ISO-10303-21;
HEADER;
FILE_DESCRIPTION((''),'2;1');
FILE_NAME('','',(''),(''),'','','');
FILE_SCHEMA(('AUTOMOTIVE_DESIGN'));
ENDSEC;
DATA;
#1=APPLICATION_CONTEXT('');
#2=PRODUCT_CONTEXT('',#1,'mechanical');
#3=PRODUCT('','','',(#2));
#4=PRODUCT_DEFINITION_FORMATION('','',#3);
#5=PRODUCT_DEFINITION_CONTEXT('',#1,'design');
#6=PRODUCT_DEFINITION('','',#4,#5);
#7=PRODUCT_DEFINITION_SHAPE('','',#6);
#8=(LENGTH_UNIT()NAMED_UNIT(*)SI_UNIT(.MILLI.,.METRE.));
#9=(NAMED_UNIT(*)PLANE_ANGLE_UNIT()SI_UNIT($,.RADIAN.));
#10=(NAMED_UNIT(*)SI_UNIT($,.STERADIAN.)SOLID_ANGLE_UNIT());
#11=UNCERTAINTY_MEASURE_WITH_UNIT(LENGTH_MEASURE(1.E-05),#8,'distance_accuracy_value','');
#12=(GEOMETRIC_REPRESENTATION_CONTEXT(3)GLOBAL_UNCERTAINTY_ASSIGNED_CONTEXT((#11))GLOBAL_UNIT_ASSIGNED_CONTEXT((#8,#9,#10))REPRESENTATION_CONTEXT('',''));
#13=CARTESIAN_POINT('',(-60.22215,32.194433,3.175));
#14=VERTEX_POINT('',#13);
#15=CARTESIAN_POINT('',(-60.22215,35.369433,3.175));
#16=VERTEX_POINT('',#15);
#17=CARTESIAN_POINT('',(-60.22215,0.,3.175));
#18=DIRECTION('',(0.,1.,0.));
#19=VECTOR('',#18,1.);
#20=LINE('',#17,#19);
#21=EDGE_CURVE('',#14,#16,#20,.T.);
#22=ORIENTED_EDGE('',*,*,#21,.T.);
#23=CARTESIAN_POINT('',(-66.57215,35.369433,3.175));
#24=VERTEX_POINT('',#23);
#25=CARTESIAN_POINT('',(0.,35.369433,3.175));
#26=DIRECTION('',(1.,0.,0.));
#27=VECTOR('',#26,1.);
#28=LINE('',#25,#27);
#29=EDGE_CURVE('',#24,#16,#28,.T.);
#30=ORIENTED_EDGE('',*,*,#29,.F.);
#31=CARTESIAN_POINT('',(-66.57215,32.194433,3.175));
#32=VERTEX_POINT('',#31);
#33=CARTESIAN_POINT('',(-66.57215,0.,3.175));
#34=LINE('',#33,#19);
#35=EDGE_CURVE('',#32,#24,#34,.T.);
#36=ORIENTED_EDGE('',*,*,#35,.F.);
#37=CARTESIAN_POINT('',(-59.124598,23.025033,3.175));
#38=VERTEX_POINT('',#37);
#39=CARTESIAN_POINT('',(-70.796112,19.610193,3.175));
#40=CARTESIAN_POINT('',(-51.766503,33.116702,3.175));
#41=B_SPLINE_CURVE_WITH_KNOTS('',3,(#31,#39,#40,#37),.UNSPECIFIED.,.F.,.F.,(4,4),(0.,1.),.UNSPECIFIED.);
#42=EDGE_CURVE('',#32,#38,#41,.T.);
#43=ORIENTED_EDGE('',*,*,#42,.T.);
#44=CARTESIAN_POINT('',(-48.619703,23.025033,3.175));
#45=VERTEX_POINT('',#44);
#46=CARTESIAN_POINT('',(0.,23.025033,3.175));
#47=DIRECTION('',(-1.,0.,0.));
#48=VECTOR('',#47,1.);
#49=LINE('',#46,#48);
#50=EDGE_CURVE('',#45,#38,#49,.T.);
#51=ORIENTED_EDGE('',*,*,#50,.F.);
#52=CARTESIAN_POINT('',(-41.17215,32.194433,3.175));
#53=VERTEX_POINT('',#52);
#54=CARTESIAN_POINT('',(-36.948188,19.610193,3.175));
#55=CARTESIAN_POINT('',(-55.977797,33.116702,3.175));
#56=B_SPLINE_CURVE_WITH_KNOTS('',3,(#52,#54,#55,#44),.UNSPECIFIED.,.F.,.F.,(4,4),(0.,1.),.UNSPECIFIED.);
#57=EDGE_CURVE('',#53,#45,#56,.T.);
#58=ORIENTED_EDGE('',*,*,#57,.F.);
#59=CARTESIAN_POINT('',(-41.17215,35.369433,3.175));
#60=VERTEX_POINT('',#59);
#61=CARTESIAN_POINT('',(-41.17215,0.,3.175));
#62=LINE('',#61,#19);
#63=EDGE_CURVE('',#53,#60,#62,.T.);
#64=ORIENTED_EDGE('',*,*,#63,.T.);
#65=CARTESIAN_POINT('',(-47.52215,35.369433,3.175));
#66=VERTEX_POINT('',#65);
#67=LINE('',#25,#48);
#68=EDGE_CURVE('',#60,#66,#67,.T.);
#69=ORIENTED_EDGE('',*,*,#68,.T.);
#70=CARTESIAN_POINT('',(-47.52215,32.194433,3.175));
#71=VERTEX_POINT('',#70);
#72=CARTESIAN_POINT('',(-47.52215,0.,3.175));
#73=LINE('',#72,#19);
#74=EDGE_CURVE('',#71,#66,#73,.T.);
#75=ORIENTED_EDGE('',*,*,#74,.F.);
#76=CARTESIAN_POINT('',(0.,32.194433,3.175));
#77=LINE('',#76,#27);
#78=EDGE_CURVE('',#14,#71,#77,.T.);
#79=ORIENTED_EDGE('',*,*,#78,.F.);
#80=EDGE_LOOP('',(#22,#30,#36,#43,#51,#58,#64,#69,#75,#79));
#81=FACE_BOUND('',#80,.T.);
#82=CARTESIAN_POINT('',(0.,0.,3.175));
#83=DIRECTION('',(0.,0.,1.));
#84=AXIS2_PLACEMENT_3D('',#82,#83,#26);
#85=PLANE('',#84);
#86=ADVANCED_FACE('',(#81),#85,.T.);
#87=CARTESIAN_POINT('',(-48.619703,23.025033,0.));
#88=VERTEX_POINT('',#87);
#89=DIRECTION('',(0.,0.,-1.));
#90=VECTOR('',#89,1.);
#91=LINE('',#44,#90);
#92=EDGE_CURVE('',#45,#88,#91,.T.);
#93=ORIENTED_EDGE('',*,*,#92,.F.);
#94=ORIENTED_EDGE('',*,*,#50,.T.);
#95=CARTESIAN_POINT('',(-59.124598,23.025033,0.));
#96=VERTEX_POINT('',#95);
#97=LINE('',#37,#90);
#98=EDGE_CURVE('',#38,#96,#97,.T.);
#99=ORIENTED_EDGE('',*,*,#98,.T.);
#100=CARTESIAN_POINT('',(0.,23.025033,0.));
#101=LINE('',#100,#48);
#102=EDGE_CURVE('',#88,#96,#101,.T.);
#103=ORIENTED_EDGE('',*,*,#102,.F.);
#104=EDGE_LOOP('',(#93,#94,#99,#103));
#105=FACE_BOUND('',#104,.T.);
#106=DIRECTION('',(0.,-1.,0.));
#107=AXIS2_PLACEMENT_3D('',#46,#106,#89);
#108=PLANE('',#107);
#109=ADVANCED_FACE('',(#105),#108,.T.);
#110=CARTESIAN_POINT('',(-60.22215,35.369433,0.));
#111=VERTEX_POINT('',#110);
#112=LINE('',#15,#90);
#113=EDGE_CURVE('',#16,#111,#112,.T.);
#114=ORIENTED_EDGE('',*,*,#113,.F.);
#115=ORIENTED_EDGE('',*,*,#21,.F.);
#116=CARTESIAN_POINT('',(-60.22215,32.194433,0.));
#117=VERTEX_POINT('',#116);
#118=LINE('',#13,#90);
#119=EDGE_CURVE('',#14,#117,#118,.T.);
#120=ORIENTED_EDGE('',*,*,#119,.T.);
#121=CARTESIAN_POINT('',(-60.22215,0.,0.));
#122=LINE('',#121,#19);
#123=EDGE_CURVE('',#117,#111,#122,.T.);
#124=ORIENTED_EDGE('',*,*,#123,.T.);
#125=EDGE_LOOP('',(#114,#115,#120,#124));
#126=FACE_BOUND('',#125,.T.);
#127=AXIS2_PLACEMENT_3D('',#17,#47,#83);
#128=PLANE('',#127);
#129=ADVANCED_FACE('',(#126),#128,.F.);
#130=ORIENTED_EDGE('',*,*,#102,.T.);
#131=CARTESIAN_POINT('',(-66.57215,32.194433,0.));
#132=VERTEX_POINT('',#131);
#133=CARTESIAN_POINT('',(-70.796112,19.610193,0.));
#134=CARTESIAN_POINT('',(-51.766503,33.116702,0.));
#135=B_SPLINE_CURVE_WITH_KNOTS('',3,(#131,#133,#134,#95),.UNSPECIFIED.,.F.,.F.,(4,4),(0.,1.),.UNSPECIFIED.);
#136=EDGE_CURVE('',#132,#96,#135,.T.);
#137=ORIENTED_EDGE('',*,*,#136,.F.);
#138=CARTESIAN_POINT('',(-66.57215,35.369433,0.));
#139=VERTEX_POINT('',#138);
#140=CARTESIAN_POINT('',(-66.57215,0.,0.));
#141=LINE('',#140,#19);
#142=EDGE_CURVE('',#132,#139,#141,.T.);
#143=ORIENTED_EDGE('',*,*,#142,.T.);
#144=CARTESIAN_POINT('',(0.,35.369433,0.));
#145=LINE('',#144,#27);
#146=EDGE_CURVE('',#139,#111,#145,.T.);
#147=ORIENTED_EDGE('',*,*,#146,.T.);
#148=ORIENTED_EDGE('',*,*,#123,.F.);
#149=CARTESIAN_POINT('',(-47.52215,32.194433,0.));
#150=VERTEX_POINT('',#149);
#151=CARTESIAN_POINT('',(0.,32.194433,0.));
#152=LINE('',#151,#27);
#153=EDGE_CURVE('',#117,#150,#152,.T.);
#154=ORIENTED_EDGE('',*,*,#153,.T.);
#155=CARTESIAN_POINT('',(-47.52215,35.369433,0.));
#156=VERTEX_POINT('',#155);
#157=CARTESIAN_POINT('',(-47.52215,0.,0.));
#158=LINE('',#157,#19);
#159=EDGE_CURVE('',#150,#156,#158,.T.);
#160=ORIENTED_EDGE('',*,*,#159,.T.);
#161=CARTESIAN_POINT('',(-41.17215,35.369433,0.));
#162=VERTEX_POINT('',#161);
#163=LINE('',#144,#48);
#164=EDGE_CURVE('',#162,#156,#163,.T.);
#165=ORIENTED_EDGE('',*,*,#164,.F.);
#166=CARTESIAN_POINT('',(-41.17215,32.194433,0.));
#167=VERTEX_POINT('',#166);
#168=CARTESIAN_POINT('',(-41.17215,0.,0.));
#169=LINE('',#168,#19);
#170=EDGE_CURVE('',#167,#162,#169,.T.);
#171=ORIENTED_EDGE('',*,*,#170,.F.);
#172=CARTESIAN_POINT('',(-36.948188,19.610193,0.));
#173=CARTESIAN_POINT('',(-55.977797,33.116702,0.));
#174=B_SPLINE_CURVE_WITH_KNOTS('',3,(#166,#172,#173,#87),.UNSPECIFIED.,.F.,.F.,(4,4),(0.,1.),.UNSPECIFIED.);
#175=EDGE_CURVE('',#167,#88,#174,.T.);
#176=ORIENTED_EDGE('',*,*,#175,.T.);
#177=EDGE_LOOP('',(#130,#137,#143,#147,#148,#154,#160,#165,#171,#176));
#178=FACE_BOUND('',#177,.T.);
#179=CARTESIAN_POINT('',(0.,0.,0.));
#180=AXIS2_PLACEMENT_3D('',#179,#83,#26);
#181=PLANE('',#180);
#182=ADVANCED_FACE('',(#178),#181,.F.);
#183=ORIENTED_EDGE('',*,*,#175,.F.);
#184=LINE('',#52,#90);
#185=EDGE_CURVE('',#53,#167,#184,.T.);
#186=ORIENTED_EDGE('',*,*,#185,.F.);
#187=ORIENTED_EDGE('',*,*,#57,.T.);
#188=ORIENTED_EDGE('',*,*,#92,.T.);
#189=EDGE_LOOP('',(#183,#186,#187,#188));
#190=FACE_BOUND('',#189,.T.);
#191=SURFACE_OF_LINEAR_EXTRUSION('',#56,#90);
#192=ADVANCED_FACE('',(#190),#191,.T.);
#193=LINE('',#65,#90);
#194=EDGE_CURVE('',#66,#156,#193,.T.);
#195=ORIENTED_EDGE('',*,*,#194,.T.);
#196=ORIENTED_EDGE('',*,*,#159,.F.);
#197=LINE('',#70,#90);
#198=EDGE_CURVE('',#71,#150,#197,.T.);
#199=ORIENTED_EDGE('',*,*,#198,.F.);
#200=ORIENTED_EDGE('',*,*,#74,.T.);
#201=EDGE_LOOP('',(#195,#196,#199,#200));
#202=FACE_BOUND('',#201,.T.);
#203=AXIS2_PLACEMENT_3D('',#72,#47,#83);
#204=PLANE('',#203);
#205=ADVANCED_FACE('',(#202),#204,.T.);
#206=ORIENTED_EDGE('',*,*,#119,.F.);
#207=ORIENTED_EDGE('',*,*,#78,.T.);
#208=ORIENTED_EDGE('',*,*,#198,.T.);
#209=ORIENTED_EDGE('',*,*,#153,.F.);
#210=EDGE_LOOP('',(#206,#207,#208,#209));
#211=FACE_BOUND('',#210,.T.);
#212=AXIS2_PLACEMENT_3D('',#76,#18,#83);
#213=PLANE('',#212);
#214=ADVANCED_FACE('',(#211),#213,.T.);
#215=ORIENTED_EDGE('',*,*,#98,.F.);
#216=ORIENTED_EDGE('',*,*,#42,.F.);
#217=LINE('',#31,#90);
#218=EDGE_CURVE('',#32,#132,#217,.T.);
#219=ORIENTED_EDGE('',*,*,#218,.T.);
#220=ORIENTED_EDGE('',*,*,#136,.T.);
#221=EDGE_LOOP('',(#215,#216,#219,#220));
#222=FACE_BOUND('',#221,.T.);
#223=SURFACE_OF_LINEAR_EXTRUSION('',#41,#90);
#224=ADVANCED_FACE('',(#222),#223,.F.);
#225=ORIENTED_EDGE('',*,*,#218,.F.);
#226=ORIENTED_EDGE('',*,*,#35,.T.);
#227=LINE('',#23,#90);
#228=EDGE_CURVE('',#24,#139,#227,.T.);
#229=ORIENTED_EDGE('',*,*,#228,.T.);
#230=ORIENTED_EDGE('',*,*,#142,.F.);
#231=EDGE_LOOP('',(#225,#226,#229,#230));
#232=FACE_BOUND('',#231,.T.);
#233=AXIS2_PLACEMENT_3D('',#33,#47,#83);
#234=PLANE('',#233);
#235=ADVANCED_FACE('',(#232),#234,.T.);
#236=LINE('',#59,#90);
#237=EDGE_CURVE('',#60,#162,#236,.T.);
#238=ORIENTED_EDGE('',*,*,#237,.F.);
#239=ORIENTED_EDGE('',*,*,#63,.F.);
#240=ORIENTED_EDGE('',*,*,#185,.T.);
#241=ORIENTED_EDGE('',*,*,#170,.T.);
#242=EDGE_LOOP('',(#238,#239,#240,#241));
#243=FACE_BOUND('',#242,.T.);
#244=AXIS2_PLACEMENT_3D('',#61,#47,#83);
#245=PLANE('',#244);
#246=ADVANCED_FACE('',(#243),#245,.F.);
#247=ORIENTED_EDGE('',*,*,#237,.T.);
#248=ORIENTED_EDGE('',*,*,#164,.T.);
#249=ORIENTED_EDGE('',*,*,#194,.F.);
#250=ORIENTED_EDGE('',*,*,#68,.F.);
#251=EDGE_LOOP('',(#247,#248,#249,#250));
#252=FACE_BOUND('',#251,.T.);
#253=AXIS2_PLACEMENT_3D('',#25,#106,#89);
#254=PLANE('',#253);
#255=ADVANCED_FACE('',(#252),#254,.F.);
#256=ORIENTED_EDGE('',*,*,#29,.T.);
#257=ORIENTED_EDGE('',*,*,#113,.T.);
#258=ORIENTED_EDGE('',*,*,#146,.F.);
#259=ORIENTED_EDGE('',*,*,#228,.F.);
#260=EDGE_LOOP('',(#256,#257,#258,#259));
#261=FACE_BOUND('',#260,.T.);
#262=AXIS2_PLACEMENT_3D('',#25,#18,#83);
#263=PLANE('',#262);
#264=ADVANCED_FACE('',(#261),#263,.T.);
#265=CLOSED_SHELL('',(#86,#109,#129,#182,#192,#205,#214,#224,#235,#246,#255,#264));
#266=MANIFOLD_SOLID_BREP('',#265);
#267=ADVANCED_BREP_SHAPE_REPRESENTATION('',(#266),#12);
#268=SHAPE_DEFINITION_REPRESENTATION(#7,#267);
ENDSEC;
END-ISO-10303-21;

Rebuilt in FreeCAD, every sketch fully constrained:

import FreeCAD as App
import Part
import Sketcher
from FreeCAD import Vector
Q = App.Units.Quantity

doc = App.newDocument("Part")
params = doc.addObject("Spreadsheet::Sheet", "Params")
for row, (alias, value) in enumerate([
    ("sketch1_width", "0.5 in"),
    ("sketch1_height", "0.125 in"),
    ("pad1_length", "0.125 in"),
], start=1):
    params.set(f"A{row}", alias)
    params.set(f"B{row}", "=" + value)
    params.setAlias(f"B{row}", alias)

body = doc.addObject("PartDesign::Body", "Body")

sketch1 = doc.addObject("Sketcher::SketchObject", "Sketch")
body.addObject(sketch1)
sketch1.AttachmentSupport = (doc.XY_Plane, [""])
sketch1.MapMode = "FlatFace"
sketch1.addGeometry(Part.LineSegment(Vector(-66.57215, 35.369433, 0), Vector(-66.57215, 32.194433, 0)), False)
sketch1.addGeometry(Part.BSplineCurve([Vector(-66.57215, 32.194433, 0), Vector(-70.796112, 19.610193, 0), Vector(-51.766503, 33.116702, 0), Vector(-59.124598, 23.025033, 0)], [4, 4], [0, 1], False, 3, [1, 1, 1, 1], False), False)
sketch1.addGeometry(Part.LineSegment(Vector(-59.124598, 23.025033, 0), Vector(-48.619703, 23.025033, 0)), False)
sketch1.addGeometry(Part.BSplineCurve([Vector(-41.17215, 32.194433, 0), Vector(-36.948188, 19.610193, 0), Vector(-55.977797, 33.116702, 0), Vector(-48.619703, 23.025033, 0)], [4, 4], [0, 1], False, 3, [1, 1, 1, 1], False), False)
sketch1.addGeometry(Part.LineSegment(Vector(-41.17215, 32.194433, 0), Vector(-41.17215, 35.369433, 0)), False)
sketch1.addGeometry(Part.LineSegment(Vector(-41.17215, 35.369433, 0), Vector(-47.52215, 35.369433, 0)), False)
sketch1.addGeometry(Part.LineSegment(Vector(-47.52215, 35.369433, 0), Vector(-47.52215, 32.194433, 0)), False)
sketch1.addGeometry(Part.LineSegment(Vector(-47.52215, 32.194433, 0), Vector(-60.22215, 32.194433, 0)), False)
sketch1.addGeometry(Part.LineSegment(Vector(-60.22215, 32.194433, 0), Vector(-60.22215, 35.369433, 0)), False)
sketch1.addGeometry(Part.LineSegment(Vector(-60.22215, 35.369433, 0), Vector(-66.57215, 35.369433, 0)), False)
sketch1.addConstraint(Sketcher.Constraint("Block", 1))
sketch1.addConstraint(Sketcher.Constraint("Block", 3))
sketch1.addConstraint(Sketcher.Constraint("Coincident", 0, 2, 1, 1))
sketch1.addConstraint(Sketcher.Constraint("Coincident", 1, 2, 2, 1))
sketch1.addConstraint(Sketcher.Constraint("Coincident", 2, 2, 3, 2))
sketch1.addConstraint(Sketcher.Constraint("Coincident", 3, 1, 4, 1))
sketch1.addConstraint(Sketcher.Constraint("Coincident", 4, 2, 5, 1))
sketch1.addConstraint(Sketcher.Constraint("Coincident", 5, 2, 6, 1))
sketch1.addConstraint(Sketcher.Constraint("Coincident", 6, 2, 7, 1))
sketch1.addConstraint(Sketcher.Constraint("Coincident", 7, 2, 8, 1))
sketch1.addConstraint(Sketcher.Constraint("Coincident", 8, 2, 9, 1))
sketch1.addConstraint(Sketcher.Constraint("Coincident", 9, 2, 0, 1))
sketch1.addConstraint(Sketcher.Constraint("Vertical", 0))
sketch1.addConstraint(Sketcher.Constraint("Vertical", 4))
sketch1.addConstraint(Sketcher.Constraint("Horizontal", 5))
sketch1.addConstraint(Sketcher.Constraint("Vertical", 6))
sketch1.addConstraint(Sketcher.Constraint("Horizontal", 7))
sketch1.addConstraint(Sketcher.Constraint("Vertical", 8))
sketch1.addConstraint(Sketcher.Constraint("Horizontal", 9))
sketch1.addConstraint(Sketcher.Constraint("Horizontal", 0, 2, 6, 2))
sketch1.addConstraint(Sketcher.Constraint("Horizontal", 5, 2, 8, 2))
sketch1.addConstraint(Sketcher.Constraint("Equal", 5, 9))
sketch1.addConstraint(Sketcher.Constraint("DistanceX", 7, 2, 7, 1, Q("0.5 in")))
sketch1.addConstraint(Sketcher.Constraint("DistanceY", 0, 2, 0, 1, Q("0.125 in")))
sketch1.setExpression("Constraints[22]", "Params.sketch1_width")
sketch1.setExpression("Constraints[23]", "Params.sketch1_height")
pad1 = doc.addObject("PartDesign::Pad", "Pad")
body.addObject(pad1)
pad1.Profile = sketch1
pad1.setExpression("Length", "Params.pad1_length")

doc.recompute()
